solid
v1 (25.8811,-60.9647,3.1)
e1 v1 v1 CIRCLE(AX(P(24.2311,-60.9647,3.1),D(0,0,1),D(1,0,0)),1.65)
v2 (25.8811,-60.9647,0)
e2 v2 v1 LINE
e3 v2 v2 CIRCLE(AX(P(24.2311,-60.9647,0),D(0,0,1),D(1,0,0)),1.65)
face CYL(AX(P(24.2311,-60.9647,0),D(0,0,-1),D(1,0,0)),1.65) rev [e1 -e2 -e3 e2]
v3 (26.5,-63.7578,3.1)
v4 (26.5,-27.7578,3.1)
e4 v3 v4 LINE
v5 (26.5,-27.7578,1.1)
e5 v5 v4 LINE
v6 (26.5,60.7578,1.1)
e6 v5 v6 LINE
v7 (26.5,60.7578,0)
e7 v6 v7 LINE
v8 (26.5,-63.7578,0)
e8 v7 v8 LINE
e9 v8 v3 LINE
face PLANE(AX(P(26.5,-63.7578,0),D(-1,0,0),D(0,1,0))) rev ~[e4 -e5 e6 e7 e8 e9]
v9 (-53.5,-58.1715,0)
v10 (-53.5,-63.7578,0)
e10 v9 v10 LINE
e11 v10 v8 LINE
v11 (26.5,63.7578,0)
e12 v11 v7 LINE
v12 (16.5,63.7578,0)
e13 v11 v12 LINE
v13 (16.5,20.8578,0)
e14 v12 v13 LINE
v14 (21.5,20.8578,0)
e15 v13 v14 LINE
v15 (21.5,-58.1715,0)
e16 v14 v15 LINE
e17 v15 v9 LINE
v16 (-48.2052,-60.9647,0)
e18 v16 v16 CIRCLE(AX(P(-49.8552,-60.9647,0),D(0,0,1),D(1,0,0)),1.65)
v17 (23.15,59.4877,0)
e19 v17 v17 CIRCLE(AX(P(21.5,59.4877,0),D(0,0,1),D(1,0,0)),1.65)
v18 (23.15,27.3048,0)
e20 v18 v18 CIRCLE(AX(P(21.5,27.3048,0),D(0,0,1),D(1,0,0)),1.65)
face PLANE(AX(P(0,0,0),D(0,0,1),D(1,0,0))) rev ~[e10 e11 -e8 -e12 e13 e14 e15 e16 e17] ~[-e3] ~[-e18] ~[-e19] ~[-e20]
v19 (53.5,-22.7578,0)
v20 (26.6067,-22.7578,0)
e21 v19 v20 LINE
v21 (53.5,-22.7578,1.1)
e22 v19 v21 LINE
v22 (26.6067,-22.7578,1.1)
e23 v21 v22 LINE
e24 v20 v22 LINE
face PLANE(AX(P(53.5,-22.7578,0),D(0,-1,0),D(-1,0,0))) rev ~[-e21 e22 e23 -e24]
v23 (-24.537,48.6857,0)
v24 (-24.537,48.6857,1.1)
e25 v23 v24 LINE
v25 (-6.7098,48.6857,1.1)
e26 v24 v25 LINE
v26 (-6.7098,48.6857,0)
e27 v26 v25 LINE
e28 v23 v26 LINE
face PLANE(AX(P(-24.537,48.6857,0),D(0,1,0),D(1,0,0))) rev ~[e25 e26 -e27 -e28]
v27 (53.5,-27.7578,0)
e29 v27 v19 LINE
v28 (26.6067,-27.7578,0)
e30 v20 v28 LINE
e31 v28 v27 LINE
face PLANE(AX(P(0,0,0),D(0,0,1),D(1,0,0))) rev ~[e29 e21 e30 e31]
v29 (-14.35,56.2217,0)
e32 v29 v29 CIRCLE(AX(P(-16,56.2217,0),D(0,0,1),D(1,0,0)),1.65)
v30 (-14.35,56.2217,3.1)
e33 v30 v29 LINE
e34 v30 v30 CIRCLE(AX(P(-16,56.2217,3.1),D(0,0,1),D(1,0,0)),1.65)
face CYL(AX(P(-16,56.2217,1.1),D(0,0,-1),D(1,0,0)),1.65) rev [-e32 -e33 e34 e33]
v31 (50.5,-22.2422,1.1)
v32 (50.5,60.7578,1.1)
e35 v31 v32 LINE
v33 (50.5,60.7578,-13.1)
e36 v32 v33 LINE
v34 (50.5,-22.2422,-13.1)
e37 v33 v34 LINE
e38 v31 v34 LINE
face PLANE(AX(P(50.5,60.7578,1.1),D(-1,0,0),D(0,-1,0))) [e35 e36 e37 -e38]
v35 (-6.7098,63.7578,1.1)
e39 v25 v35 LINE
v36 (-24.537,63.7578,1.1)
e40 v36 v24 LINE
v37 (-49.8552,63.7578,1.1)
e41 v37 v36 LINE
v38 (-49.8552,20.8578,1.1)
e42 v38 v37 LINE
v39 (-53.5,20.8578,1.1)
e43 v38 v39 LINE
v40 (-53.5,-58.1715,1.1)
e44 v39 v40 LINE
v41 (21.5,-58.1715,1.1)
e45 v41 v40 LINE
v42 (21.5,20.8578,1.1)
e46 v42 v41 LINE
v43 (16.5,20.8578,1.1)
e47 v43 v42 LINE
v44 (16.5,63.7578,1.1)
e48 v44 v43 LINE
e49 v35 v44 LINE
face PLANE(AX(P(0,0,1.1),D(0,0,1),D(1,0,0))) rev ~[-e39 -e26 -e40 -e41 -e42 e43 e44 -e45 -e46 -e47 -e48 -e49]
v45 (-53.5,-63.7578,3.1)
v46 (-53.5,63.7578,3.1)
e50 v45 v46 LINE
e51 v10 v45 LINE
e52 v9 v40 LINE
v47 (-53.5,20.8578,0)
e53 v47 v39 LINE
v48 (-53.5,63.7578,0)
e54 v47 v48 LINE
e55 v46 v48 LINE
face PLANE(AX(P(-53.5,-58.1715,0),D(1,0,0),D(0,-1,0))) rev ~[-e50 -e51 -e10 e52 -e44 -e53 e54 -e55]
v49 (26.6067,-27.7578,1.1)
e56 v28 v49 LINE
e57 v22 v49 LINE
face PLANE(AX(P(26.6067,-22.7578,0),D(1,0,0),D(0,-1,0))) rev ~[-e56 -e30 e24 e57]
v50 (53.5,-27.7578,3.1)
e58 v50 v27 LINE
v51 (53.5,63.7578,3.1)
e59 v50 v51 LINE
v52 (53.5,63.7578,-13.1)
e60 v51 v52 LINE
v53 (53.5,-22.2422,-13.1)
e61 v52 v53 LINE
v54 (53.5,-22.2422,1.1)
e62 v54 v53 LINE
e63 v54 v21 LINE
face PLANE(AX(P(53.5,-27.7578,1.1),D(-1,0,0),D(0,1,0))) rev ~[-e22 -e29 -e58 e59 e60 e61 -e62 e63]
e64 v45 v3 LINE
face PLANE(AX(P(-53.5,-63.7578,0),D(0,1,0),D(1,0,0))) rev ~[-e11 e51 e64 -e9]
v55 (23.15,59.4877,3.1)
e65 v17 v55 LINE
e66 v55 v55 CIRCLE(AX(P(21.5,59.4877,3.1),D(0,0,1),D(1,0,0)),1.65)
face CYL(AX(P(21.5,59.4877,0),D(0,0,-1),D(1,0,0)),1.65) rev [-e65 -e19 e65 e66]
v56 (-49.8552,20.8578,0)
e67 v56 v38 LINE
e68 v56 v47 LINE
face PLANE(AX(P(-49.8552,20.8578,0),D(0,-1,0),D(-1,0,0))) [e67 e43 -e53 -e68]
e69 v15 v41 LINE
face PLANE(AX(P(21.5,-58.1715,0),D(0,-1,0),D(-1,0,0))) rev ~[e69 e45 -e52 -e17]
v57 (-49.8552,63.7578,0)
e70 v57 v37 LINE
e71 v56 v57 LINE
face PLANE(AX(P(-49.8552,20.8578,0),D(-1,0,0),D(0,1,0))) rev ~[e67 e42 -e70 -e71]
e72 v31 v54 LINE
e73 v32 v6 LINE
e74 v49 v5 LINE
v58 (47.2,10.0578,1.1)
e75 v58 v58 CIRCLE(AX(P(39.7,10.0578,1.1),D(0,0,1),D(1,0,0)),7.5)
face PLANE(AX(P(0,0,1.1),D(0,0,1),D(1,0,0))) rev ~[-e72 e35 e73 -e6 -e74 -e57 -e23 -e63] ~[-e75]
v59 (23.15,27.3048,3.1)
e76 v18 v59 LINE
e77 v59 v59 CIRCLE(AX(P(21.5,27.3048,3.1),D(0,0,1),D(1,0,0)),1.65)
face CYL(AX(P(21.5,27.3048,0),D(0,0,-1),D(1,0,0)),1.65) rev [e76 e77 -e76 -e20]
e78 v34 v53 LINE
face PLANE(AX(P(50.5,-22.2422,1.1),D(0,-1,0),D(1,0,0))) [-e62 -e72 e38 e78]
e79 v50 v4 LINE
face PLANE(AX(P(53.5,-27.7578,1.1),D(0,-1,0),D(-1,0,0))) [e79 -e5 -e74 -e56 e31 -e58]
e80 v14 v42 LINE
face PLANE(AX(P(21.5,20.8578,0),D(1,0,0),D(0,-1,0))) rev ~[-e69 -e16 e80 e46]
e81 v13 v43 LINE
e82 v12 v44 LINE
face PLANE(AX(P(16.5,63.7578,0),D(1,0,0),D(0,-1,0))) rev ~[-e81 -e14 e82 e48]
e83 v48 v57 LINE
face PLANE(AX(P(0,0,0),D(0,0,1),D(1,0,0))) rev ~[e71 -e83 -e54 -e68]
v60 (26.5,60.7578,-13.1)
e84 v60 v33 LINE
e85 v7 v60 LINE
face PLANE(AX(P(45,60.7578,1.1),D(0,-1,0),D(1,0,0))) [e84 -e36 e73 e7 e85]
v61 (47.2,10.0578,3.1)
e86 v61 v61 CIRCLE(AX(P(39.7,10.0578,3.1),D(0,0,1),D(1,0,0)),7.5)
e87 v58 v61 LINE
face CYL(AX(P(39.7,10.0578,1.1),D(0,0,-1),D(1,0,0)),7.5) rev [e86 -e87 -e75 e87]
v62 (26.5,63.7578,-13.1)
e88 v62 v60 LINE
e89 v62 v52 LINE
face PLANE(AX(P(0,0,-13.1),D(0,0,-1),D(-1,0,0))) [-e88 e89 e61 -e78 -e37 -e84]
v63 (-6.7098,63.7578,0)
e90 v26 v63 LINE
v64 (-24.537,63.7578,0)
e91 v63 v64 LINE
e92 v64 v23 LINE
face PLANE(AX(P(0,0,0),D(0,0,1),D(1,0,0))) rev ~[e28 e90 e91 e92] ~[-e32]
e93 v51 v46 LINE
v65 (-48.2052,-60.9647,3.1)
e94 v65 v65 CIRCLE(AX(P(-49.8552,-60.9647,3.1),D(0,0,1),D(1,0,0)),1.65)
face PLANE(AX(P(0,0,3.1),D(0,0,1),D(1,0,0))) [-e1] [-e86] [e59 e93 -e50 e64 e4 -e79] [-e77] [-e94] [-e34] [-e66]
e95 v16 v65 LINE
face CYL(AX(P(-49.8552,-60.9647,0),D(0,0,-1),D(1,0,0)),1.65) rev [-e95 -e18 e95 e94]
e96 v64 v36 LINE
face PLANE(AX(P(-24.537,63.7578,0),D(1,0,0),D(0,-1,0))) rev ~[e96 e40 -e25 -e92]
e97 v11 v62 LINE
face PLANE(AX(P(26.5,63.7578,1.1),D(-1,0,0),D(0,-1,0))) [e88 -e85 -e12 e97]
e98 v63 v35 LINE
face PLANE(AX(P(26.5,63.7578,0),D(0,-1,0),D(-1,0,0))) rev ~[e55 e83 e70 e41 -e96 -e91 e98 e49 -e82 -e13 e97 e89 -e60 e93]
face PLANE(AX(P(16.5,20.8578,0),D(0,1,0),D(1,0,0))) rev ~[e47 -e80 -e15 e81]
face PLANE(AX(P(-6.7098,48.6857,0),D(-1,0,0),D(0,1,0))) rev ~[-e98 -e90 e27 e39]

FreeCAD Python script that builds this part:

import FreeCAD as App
import Part
import Sketcher

doc = App.newDocument("Part")
body = doc.addObject("PartDesign::Body", "Body")
body.AllowCompound = True

# Sketch on XY plane
sketch1 = doc.addObject("Sketcher::SketchObject", "Sketch")
body.addObject(sketch1)
sketch1.AttachmentSupport = (doc.XY_Plane, [""])
sketch1.MapMode = "FlatFace"
sketch1.addGeometry([
    Part.LineSegment(App.Vector(-53.5, -58.2, 0), App.Vector(-53.5, -63.8, 0)),  # 0
    Part.LineSegment(App.Vector(-53.5, -63.8, 0), App.Vector(26.5, -63.8, 0)),  # 1
    Part.LineSegment(App.Vector(26.5, -63.8, 0), App.Vector(26.5, 63.8, 0)),  # 2
    Part.LineSegment(App.Vector(26.5, 63.8, 0), App.Vector(16.5, 63.8, 0)),  # 3
    Part.LineSegment(App.Vector(16.5, 63.8, 0), App.Vector(16.5, 20.9, 0)),  # 4
    Part.LineSegment(App.Vector(16.5, 20.9, 0), App.Vector(21.5, 20.9, 0)),  # 5
    Part.LineSegment(App.Vector(21.5, 20.9, 0), App.Vector(21.5, -58.2, 0)),  # 6
    Part.LineSegment(App.Vector(21.5, -58.2, 0), App.Vector(-53.5, -58.2, 0)),  # 7
    Part.Circle(App.Vector(-49.9, -61, 0), App.Vector(0, 0, 1), 1.6),  # 8
    Part.Circle(App.Vector(24.2, -61, 0), App.Vector(0, 0, 1), 1.6),  # 9
    Part.Circle(App.Vector(21.5, 59.5, 0), App.Vector(0, 0, 1), 1.6),  # 10
    Part.Circle(App.Vector(21.5, 27.3, 0), App.Vector(0, 0, 1), 1.6),  # 11
    Part.LineSegment(App.Vector(-49.9, 20.9, 0), App.Vector(-49.9, 63.8, 0)),  # 12
    Part.LineSegment(App.Vector(-49.9, 63.8, 0), App.Vector(-53.5, 63.8, 0)),  # 13
    Part.LineSegment(App.Vector(-53.5, 63.8, 0), App.Vector(-53.5, 20.9, 0)),  # 14
    Part.LineSegment(App.Vector(-53.5, 20.9, 0), App.Vector(-49.9, 20.9, 0)),  # 15
    Part.LineSegment(App.Vector(-6.7, 63.8, 0), App.Vector(-24.5, 63.8, 0)),  # 16
    Part.LineSegment(App.Vector(-24.5, 63.8, 0), App.Vector(-24.5, 48.7, 0)),  # 17
    Part.LineSegment(App.Vector(-24.5, 48.7, 0), App.Vector(-6.7, 48.7, 0)),  # 18
    Part.LineSegment(App.Vector(-6.7, 48.7, 0), App.Vector(-6.7, 63.8, 0)),  # 19
    Part.Circle(App.Vector(-16, 56.2, 0), App.Vector(0, 0, 1), 1.6),  # 20
    Part.LineSegment(App.Vector(26.6, -22.8, 0), App.Vector(26.6, -27.8, 0)),  # 21
    Part.LineSegment(App.Vector(26.6, -27.8, 0), App.Vector(53.5, -27.8, 0)),  # 22
    Part.LineSegment(App.Vector(53.5, -27.8, 0), App.Vector(53.5, -22.8, 0)),  # 23
    Part.LineSegment(App.Vector(53.5, -22.8, 0), App.Vector(26.6, -22.8, 0)),  # 24
], False)
sketch1.addConstraint([
    Sketcher.Constraint("Coincident", 0, 2, 1, 1),
    Sketcher.Constraint("Coincident", 1, 2, 2, 1),
    Sketcher.Constraint("Coincident", 2, 2, 3, 1),
    Sketcher.Constraint("Coincident", 3, 2, 4, 1),
    Sketcher.Constraint("Coincident", 4, 2, 5, 1),
    Sketcher.Constraint("Coincident", 5, 2, 6, 1),
    Sketcher.Constraint("Coincident", 6, 2, 7, 1),
    Sketcher.Constraint("Coincident", 7, 2, 0, 1),
    Sketcher.Constraint("Coincident", 12, 2, 13, 1),
    Sketcher.Constraint("Coincident", 13, 2, 14, 1),
    Sketcher.Constraint("Coincident", 14, 2, 15, 1),
    Sketcher.Constraint("Coincident", 15, 2, 12, 1),
    Sketcher.Constraint("Coincident", 16, 2, 17, 1),
    Sketcher.Constraint("Coincident", 17, 2, 18, 1),
    Sketcher.Constraint("Coincident", 18, 2, 19, 1),
    Sketcher.Constraint("Coincident", 19, 2, 16, 1),
    Sketcher.Constraint("Coincident", 21, 2, 22, 1),
    Sketcher.Constraint("Coincident", 22, 2, 23, 1),
    Sketcher.Constraint("Coincident", 23, 2, 24, 1),
    Sketcher.Constraint("Coincident", 24, 2, 21, 1),
    Sketcher.Constraint("Vertical", 0),
    Sketcher.Constraint("Horizontal", 1),
    Sketcher.Constraint("Vertical", 2),
    Sketcher.Constraint("Horizontal", 3),
    Sketcher.Constraint("Vertical", 4),
    Sketcher.Constraint("Horizontal", 5),
    Sketcher.Constraint("Vertical", 6),
    Sketcher.Constraint("Horizontal", 7),
    Sketcher.Constraint("Vertical", 12),
    Sketcher.Constraint("Horizontal", 13),
    Sketcher.Constraint("Vertical", 14),
    Sketcher.Constraint("Horizontal", 15),
    Sketcher.Constraint("Horizontal", 16),
    Sketcher.Constraint("Vertical", 17),
    Sketcher.Constraint("Horizontal", 18),
    Sketcher.Constraint("Vertical", 19),
    Sketcher.Constraint("Vertical", 21),
    Sketcher.Constraint("Horizontal", 22),
    Sketcher.Constraint("Vertical", 23),
    Sketcher.Constraint("Horizontal", 24),
    Sketcher.Constraint("Equal", 8, 9),
    Sketcher.Constraint("Equal", 9, 10),
    Sketcher.Constraint("Equal", 10, 11),
    Sketcher.Constraint("Equal", 11, 20),
    Sketcher.Constraint("Symmetric", 0, 2, 13, 2, -1),
    Sketcher.Constraint("Horizontal", 8, 3, 9, 3),
    Sketcher.Constraint("Horizontal", 3, 2, 12, 2),
    Sketcher.Constraint("Horizontal", 5, 2, 14, 2),
    Sketcher.Constraint("Horizontal", 13, 2, 16, 2),
    Sketcher.Constraint("Vertical", 10, 3, 11, 3),
    Sketcher.Constraint("Vertical", 11, 3, 5, 2),
    Sketcher.Constraint("Vertical", 8, 3, 12, 2),
    Sketcher.Constraint("Equal", 5, 21),
    Sketcher.Constraint("Diameter", 8, 3.3),
    Sketcher.Constraint("DistanceX", 1, 1, 1, 2, 80.0),
    Sketcher.Constraint("DistanceX", 3, 2, 3, 1, 10.0),
    Sketcher.Constraint("DistanceX", 5, 1, 5, 2, 5.0),
    Sketcher.Constraint("DistanceY", 4, 2, 4, 1, 42.9),
    Sketcher.Constraint("DistanceX", 20, 3, -1, 1, 16.0),
    Sketcher.Constraint("DistanceY", 1, 2, 21, 2, 36.0),
    Sketcher.Constraint("DistanceX", 6, 2, 22, 2, 32.0),
    Sketcher.Constraint("DistanceX", -1, 1, 10, 3, 21.5),
    Sketcher.Constraint("DistanceY", 17, 2, 17, 1, 15.072),
    Sketcher.Constraint("DistanceY", 10, 3, 2, 2, 4.27),
    Sketcher.Constraint("DistanceX", 13, 2, 13, 1, 3.6448),
    Sketcher.Constraint("DistanceX", 16, 2, 16, 1, 17.8272),
    Sketcher.Constraint("DistanceX", 22, 1, 22, 2, 26.8933),
    Sketcher.Constraint("DistanceY", 0, 2, 0, 1, 5.5863),
    Sketcher.Constraint("DistanceY", 2, 1, 2, 2, 127.5156),
    Sketcher.Constraint("DistanceX", -1, 1, 9, 3, 24.231),
    Sketcher.Constraint("DistanceX", 16, 2, -1, 1, 24.537),
    Sketcher.Constraint("DistanceY", 11, 3, 10, 3, 32.183),
    Sketcher.Constraint("DistanceY", 20, 3, 10, 3, 3.266),
    Sketcher.Constraint("DistanceY", 0, 2, 8, 3, 2.793),
])
pad1 = doc.addObject("PartDesign::Pad", "Pad")
body.addObject(pad1)
pad1.Profile = sketch1
pad1.Length = 1.1

# Sketch on XY plane
sketch2 = doc.addObject("Sketcher::SketchObject", "Sketch001")
body.addObject(sketch2)
sketch2.AttachmentSupport = (doc.XY_Plane, [""])
sketch2.MapMode = "FlatFace"
sketch2.AttachmentOffset = App.Placement(App.Vector(0, 0, 1.1), App.Rotation())
sketch2.addGeometry([
    Part.LineSegment(App.Vector(-53.5, -63.8, 0), App.Vector(26.5, -63.8, 0)),  # 0
    Part.LineSegment(App.Vector(26.5, -63.8, 0), App.Vector(26.5, -27.8, 0)),  # 1
    Part.LineSegment(App.Vector(26.5, -27.8, 0), App.Vector(53.5, -27.8, 0)),  # 2
    Part.LineSegment(App.Vector(53.5, -27.8, 0), App.Vector(53.5, 63.8, 0)),  # 3
    Part.LineSegment(App.Vector(53.5, 63.8, 0), App.Vector(-53.5, 63.8, 0)),  # 4
    Part.LineSegment(App.Vector(-53.5, 63.8, 0), App.Vector(-53.5, -63.8, 0)),  # 5
    Part.Circle(App.Vector(-49.9, -61, 0), App.Vector(0, 0, 1), 1.6),  # 6
    Part.Circle(App.Vector(24.2, -61, 0), App.Vector(0, 0, 1), 1.6),  # 7
    Part.Circle(App.Vector(21.5, 27.3, 0), App.Vector(0, 0, 1), 1.6),  # 8
    Part.Circle(App.Vector(21.5, 59.5, 0), App.Vector(0, 0, 1), 1.6),  # 9
    Part.Circle(App.Vector(-16, 56.2, 0), App.Vector(0, 0, 1), 1.6),  # 10
    Part.Circle(App.Vector(39.7, 10.1, 0), App.Vector(0, 0, 1), 7.5),  # 11
], False)
sketch2.addConstraint([
    Sketcher.Constraint("Coincident", 0, 2, 1, 1),
    Sketcher.Constraint("Coincident", 1, 2, 2, 1),
    Sketcher.Constraint("Coincident", 2, 2, 3, 1),
    Sketcher.Constraint("Coincident", 3, 2, 4, 1),
    Sketcher.Constraint("Coincident", 4, 2, 5, 1),
    Sketcher.Constraint("Coincident", 5, 2, 0, 1),
    Sketcher.Constraint("Horizontal", 0),
    Sketcher.Constraint("Vertical", 1),
    Sketcher.Constraint("Horizontal", 2),
    Sketcher.Constraint("Vertical", 3),
    Sketcher.Constraint("Horizontal", 4),
    Sketcher.Constraint("Vertical", 5),
    Sketcher.Constraint("Equal", 6, 7),
    Sketcher.Constraint("Equal", 7, 8),
    Sketcher.Constraint("Equal", 8, 9),
    Sketcher.Constraint("Equal", 9, 10),
    Sketcher.Constraint("Symmetric", 3, 2, 5, 2, -1, 1),
    Sketcher.Constraint("Horizontal", 6, 3, 7, 3),
    Sketcher.Constraint("Vertical", 8, 3, 9, 3),
    Sketcher.Constraint("Diameter", 11, 15.0),
    Sketcher.Constraint("Diameter", 6, 3.3),
    Sketcher.Constraint("DistanceX", 0, 1, 0, 2, 80.0),
    Sketcher.Constraint("DistanceX", 2, 1, 2, 2, 27.0),
    Sketcher.Constraint("DistanceY", 1, 1, 1, 2, 36.0),
    Sketcher.Constraint("DistanceX", 10, 3, -1, 1, 16.0),
    Sketcher.Constraint("DistanceX", 8, 3, 0, 2, 5.0),
    Sketcher.Constraint("DistanceX", -1, 1, 11, 3, 39.7),
    Sketcher.Constraint("DistanceY", 11, 3, 3, 2, 53.7),
    Sketcher.Constraint("DistanceY", 11, 3, 9, 3, 49.43),
    Sketcher.Constraint("DistanceY", 3, 1, 3, 2, 91.5156),
    Sketcher.Constraint("DistanceX", -1, 1, 7, 3, 24.231),
    Sketcher.Constraint("DistanceY", 8, 3, 9, 3, 32.183),
    Sketcher.Constraint("DistanceY", 10, 3, 9, 3, 3.266),
    Sketcher.Constraint("DistanceY", 0, 2, 7, 3, 2.793),
    Sketcher.Constraint("DistanceX", 6, 3, -1, 1, 49.8552),
])
pad2 = doc.addObject("PartDesign::Pad", "Pad001")
body.addObject(pad2)
pad2.Profile = sketch2
pad2.Length = 2

# Sketch on XY plane
sketch3 = doc.addObject("Sketcher::SketchObject", "Sketch002")
body.addObject(sketch3)
sketch3.AttachmentSupport = (doc.XY_Plane, [""])
sketch3.MapMode = "FlatFace"
sketch3.AttachmentOffset = App.Placement(App.Vector(0, 0, 1.1), App.Rotation())
sketch3.addGeometry([
    Part.LineSegment(App.Vector(50.5, 60.8, 0), App.Vector(26.5, 60.8, 0)),  # 0
    Part.LineSegment(App.Vector(26.5, 60.8, 0), App.Vector(26.5, 63.8, 0)),  # 1
    Part.LineSegment(App.Vector(26.5, 63.8, 0), App.Vector(53.5, 63.8, 0)),  # 2
    Part.LineSegment(App.Vector(53.5, 63.8, 0), App.Vector(53.5, -22.2, 0)),  # 3
    Part.LineSegment(App.Vector(53.5, -22.2, 0), App.Vector(50.5, -22.2, 0)),  # 4
    Part.LineSegment(App.Vector(50.5, -22.2, 0), App.Vector(50.5, 60.8, 0)),  # 5
], False)
sketch3.addConstraint([
    Sketcher.Constraint("Coincident", 0, 2, 1, 1),
    Sketcher.Constraint("Coincident", 1, 2, 2, 1),
    Sketcher.Constraint("Coincident", 2, 2, 3, 1),
    Sketcher.Constraint("Coincident", 3, 2, 4, 1),
    Sketcher.Constraint("Coincident", 4, 2, 5, 1),
    Sketcher.Constraint("Coincident", 5, 2, 0, 1),
    Sketcher.Constraint("Horizontal", 0),
    Sketcher.Constraint("Vertical", 1),
    Sketcher.Constraint("Horizontal", 2),
    Sketcher.Constraint("Vertical", 3),
    Sketcher.Constraint("Horizontal", 4),
    Sketcher.Constraint("Vertical", 5),
    Sketcher.Constraint("Equal", 4, 1),
    Sketcher.Constraint("DistanceX", 4, 2, 4, 1, 3.0),
    Sketcher.Constraint("DistanceY", 3, 2, 3, 1, 86.0),
    Sketcher.Constraint("DistanceX", 0, 2, 0, 1, 24.0),
    Sketcher.Constraint("DistanceX", -1, 1, 0, 2, 26.5),
    Sketcher.Constraint("DistanceY", -1, 1, 0, 2, 60.7578),
])
pad3 = doc.addObject("PartDesign::Pad", "Pad002")
body.addObject(pad3)
pad3.Profile = sketch3
pad3.Length = 14.2
pad3.Reversed = True

doc.recompute()
